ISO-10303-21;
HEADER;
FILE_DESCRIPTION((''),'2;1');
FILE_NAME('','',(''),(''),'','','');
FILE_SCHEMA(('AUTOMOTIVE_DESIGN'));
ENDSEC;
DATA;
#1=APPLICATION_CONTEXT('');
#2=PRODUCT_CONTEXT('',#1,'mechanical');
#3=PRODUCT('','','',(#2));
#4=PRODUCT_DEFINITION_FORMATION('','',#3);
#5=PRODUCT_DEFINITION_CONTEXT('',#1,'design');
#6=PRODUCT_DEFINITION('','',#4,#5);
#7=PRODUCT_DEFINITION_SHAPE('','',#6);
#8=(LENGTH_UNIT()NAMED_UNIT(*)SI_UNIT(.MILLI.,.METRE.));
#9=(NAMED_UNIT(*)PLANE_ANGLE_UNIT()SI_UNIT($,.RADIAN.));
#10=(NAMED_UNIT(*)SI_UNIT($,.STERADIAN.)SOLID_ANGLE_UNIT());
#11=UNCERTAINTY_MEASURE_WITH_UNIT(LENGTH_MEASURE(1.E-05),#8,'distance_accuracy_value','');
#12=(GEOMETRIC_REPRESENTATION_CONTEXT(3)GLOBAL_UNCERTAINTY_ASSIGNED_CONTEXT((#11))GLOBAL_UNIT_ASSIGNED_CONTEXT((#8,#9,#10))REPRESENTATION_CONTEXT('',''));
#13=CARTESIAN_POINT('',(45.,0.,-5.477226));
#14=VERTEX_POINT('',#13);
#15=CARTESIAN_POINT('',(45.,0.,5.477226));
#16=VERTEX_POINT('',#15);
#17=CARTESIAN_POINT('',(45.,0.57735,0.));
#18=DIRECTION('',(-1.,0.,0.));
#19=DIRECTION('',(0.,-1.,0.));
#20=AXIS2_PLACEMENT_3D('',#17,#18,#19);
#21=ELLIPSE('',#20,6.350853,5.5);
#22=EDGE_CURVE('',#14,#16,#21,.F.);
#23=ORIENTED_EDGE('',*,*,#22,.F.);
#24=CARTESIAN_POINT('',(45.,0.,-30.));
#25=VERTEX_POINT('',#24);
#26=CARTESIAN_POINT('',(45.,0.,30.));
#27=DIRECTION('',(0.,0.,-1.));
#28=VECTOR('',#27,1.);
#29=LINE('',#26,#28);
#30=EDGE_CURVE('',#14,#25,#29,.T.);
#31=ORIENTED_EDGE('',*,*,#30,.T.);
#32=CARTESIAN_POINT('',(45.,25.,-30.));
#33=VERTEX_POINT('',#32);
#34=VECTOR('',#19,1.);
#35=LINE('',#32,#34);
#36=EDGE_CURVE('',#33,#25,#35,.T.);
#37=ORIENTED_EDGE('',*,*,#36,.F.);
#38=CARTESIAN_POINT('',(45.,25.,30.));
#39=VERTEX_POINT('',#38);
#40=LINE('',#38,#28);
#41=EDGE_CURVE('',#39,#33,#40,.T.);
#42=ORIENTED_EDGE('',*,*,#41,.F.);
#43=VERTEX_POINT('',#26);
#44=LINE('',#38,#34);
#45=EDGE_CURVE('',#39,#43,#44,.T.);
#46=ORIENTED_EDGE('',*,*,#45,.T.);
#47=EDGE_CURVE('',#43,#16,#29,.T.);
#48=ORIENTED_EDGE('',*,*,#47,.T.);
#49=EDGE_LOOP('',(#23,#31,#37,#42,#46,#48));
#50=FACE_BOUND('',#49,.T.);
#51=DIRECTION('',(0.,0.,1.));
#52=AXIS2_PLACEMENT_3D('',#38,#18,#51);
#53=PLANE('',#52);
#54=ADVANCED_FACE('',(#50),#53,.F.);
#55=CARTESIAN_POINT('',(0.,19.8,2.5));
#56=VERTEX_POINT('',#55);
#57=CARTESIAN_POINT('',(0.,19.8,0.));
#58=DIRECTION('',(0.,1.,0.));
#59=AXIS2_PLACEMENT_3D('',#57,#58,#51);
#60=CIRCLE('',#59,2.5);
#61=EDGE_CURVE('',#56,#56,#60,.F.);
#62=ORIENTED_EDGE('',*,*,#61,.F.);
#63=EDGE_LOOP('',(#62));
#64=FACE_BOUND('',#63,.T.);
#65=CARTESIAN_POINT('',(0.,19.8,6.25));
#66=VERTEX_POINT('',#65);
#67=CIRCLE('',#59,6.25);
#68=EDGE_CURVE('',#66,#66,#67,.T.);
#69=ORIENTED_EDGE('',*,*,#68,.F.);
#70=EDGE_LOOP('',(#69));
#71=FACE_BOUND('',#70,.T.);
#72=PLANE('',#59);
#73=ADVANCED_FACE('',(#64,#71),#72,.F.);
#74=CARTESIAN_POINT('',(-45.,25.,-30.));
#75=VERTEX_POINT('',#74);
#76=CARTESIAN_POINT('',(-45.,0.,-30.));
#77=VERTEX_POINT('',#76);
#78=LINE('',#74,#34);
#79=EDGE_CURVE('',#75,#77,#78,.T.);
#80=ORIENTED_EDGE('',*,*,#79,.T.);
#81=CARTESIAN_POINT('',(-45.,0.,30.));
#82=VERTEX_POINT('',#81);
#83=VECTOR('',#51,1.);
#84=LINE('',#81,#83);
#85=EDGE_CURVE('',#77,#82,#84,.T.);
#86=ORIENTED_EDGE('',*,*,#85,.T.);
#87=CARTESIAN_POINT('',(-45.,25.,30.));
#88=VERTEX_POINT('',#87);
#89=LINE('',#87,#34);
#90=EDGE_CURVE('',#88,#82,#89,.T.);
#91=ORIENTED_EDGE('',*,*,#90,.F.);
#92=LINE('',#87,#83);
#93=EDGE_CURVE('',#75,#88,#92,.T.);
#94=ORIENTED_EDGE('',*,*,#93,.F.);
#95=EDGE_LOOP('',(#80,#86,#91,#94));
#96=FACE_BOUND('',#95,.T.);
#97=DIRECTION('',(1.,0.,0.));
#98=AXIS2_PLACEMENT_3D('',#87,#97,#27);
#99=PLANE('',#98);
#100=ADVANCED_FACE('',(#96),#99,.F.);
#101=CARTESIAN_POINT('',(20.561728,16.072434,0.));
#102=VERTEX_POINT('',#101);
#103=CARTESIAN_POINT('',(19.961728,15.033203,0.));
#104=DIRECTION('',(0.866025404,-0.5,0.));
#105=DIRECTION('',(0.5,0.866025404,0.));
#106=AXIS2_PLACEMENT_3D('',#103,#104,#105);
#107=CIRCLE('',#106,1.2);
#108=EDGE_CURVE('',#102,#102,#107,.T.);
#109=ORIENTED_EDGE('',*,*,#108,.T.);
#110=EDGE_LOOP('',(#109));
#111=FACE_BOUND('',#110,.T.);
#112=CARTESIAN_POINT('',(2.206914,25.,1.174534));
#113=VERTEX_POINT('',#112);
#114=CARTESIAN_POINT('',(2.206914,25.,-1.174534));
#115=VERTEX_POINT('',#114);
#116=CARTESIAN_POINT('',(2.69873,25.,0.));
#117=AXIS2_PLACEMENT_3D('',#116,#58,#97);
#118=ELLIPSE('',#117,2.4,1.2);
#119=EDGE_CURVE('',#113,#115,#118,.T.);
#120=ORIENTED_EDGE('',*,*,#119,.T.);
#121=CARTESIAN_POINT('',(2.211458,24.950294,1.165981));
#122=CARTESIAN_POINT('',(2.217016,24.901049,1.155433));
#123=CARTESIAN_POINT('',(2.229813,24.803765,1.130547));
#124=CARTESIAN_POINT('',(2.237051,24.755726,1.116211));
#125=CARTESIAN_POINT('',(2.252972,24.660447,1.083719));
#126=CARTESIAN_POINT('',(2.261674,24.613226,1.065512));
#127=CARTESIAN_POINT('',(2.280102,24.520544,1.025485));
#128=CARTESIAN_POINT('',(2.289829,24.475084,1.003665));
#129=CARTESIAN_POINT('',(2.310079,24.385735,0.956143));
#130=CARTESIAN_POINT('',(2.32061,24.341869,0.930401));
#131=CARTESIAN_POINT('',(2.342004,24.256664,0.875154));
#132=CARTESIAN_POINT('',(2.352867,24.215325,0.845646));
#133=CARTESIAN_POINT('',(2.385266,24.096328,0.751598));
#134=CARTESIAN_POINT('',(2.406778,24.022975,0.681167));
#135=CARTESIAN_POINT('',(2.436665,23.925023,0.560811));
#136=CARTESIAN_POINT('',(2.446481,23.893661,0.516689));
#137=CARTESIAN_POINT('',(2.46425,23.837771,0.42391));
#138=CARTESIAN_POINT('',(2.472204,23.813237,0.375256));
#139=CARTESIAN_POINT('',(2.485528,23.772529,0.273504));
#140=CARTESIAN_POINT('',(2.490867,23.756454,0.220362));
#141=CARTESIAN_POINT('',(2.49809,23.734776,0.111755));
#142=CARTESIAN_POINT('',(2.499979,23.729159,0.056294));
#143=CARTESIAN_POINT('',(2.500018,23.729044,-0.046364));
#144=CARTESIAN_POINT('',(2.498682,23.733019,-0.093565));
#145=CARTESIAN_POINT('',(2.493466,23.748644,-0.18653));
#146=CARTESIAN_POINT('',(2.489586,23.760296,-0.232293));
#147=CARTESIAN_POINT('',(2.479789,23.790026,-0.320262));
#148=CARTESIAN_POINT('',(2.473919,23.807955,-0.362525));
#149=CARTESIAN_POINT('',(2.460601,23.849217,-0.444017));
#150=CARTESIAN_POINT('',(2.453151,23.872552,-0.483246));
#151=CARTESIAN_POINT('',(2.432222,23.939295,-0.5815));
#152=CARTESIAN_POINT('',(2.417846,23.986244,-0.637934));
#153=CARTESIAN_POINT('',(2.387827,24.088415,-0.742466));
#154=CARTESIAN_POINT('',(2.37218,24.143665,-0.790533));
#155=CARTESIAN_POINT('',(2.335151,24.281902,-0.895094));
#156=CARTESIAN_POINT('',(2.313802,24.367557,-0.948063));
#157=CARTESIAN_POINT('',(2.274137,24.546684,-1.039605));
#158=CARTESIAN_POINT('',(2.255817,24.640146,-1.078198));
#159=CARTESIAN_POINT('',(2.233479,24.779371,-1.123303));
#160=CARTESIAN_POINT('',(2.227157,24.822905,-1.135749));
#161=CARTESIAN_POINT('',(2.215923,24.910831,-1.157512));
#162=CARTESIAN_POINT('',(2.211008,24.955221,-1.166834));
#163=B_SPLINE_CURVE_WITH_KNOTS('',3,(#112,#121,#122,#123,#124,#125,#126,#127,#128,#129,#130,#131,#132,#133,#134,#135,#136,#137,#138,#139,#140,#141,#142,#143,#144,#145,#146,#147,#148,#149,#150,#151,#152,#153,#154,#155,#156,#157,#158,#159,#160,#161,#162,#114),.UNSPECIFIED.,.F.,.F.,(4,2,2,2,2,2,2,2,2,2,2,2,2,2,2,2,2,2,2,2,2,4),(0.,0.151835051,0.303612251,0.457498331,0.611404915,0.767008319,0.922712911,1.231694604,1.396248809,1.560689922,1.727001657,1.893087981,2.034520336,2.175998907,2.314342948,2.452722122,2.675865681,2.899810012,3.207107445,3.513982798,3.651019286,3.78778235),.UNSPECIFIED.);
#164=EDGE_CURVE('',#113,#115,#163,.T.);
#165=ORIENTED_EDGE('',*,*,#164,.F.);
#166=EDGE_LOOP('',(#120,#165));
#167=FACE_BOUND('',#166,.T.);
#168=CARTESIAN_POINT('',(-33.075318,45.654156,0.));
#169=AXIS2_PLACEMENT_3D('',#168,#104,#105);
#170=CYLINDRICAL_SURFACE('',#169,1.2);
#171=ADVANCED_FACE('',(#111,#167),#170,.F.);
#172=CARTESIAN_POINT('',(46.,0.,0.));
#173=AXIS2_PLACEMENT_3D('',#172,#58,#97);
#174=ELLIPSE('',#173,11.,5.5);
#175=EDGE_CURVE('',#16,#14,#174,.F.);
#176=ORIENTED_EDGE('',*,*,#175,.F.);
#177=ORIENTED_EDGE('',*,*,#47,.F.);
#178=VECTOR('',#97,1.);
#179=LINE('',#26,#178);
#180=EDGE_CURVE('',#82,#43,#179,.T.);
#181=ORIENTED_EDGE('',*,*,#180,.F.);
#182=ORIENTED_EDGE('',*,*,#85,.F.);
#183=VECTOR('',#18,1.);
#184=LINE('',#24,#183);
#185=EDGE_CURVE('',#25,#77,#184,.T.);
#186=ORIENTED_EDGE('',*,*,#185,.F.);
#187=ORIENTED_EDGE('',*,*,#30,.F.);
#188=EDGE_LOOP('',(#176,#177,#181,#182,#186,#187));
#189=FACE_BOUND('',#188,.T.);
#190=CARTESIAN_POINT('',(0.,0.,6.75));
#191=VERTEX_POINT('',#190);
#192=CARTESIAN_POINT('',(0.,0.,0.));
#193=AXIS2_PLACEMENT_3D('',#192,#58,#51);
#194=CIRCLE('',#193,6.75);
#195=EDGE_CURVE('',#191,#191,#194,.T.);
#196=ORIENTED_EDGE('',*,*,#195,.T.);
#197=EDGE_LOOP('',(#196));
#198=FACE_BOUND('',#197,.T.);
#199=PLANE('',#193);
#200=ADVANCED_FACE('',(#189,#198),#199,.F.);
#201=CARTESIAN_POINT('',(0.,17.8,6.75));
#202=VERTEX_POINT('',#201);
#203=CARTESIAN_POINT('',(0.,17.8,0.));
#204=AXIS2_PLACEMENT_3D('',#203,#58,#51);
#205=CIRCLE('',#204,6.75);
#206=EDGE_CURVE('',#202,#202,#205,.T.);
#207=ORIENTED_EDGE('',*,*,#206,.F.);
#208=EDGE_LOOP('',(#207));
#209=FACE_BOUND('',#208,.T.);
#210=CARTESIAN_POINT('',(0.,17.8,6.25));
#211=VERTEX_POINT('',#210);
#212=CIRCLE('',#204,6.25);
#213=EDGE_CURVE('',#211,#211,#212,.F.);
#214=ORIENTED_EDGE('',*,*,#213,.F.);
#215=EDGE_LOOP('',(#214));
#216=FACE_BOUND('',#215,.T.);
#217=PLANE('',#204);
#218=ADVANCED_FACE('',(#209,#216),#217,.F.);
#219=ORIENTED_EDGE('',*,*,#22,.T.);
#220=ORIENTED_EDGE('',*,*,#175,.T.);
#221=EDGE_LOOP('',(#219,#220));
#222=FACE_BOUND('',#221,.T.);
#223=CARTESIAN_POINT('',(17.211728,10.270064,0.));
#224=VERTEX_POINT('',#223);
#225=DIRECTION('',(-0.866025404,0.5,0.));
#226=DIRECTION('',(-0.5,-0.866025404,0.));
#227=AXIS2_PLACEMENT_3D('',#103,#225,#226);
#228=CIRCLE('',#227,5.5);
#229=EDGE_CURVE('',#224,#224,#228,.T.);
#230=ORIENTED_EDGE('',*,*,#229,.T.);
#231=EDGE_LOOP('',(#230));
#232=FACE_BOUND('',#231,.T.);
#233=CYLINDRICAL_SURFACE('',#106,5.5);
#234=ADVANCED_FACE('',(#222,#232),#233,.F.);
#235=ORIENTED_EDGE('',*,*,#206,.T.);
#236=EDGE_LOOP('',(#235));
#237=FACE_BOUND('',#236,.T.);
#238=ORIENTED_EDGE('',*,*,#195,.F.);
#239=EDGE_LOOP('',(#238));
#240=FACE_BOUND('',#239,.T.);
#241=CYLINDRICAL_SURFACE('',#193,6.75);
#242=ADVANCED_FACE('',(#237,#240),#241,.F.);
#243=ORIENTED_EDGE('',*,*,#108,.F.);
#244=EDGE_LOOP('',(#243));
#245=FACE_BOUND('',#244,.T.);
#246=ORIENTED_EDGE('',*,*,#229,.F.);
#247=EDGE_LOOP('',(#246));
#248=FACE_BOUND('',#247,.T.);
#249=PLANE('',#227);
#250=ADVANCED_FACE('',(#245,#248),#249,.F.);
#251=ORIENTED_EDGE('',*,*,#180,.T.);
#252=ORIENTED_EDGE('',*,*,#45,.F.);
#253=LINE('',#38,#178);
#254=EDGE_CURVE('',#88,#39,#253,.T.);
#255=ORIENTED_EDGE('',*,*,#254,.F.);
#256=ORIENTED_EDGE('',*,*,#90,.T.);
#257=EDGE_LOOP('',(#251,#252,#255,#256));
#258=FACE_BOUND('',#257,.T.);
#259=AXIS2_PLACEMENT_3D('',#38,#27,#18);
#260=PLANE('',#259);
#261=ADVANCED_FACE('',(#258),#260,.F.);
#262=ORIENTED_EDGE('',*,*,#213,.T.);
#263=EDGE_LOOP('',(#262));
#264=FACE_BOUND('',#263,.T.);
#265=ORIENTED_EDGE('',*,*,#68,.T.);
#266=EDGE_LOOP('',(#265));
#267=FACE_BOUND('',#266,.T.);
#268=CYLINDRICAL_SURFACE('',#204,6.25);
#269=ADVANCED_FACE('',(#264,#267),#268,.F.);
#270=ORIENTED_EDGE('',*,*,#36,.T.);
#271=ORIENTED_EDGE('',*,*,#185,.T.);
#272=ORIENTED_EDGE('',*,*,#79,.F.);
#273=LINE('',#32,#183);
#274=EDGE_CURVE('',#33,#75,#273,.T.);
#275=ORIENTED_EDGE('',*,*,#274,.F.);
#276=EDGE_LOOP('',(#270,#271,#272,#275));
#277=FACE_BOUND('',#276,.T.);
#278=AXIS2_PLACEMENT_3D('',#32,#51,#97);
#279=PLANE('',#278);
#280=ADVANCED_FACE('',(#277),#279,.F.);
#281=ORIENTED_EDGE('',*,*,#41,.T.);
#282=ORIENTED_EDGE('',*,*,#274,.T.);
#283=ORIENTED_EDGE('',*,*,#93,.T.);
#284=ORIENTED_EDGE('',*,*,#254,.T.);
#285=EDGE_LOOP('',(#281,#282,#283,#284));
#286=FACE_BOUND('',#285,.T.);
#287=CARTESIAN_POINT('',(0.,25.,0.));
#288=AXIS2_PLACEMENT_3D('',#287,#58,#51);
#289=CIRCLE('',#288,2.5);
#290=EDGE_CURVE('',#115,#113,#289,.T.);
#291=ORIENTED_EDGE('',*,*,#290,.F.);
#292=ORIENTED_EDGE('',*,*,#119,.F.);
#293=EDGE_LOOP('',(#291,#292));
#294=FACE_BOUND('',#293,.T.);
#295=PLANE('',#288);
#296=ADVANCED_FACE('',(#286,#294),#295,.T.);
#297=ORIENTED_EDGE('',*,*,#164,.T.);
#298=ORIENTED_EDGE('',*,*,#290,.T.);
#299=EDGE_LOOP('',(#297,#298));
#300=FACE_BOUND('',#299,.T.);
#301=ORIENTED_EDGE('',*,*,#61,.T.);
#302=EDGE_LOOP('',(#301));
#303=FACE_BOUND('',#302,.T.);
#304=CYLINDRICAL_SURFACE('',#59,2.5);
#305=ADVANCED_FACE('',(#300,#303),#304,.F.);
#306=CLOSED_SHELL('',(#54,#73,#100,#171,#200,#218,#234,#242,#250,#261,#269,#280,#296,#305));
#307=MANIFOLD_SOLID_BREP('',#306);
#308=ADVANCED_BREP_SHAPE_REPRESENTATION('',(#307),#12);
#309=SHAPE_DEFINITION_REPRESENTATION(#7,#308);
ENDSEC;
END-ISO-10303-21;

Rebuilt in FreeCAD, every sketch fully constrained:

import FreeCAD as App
import Part
import Sketcher
Q = App.Units.Quantity

doc = App.newDocument("Part")
body = doc.addObject("PartDesign::Body", "Body")

sketch1 = body.newObject("Sketcher::SketchObject", "Sketch")
sketch1.AttachmentSupport = (doc.getObject("XZ_Plane"), [""])
sketch1.MapMode = "FlatFace"
sketch1.addGeometry(Part.LineSegment(App.Vector(-45, -30, 0), App.Vector(-45, 30, 0)), False)
sketch1.addGeometry(Part.LineSegment(App.Vector(-45, 30, 0), App.Vector(45, 30, 0)), False)
sketch1.addGeometry(Part.LineSegment(App.Vector(45, 30, 0), App.Vector(45, -30, 0)), False)
sketch1.addGeometry(Part.LineSegment(App.Vector(45, -30, 0), App.Vector(-45, -30, 0)), False)
sketch1.addConstraint(Sketcher.Constraint("Coincident", 0, 2, 1, 1))
sketch1.addConstraint(Sketcher.Constraint("Coincident", 1, 2, 2, 1))
sketch1.addConstraint(Sketcher.Constraint("Coincident", 2, 2, 3, 1))
sketch1.addConstraint(Sketcher.Constraint("Coincident", 3, 2, 0, 1))
sketch1.addConstraint(Sketcher.Constraint("Vertical", 0))
sketch1.addConstraint(Sketcher.Constraint("Horizontal", 1))
sketch1.addConstraint(Sketcher.Constraint("Vertical", 2))
sketch1.addConstraint(Sketcher.Constraint("Horizontal", 3))
sketch1.addConstraint(Sketcher.Constraint("Symmetric", 0, 2, 2, 2, -1, 1))
sketch1.addConstraint(Sketcher.Constraint("DistanceX", 1, 1, 1, 2, Q("90 mm")))
sketch1.addConstraint(Sketcher.Constraint("DistanceY", 0, 1, 0, 2, Q("60 mm")))
pad1 = body.newObject("PartDesign::Pad", "Pad")
pad1.Profile = sketch1
pad1.Length = 25
pad1.Reversed = True

sketch2 = body.newObject("Sketcher::SketchObject", "Sketch001")
sketch2.AttachmentSupport = (doc.getObject("XZ_Plane"), [""])
sketch2.MapMode = "FlatFace"
sketch2.AttachmentOffset = App.Placement(App.Vector(0, 0, -25), App.Rotation())
sketch2.addGeometry(Part.Circle(App.Vector(0, 0, 0), App.Vector(0, 0, 1), 2.5), False)
sketch2.addConstraint(Sketcher.Constraint("Coincident", 0, 3, -1, 1))
sketch2.addConstraint(Sketcher.Constraint("Diameter", 0, Q("5 mm")))
pocket1 = body.newObject("PartDesign::Pocket", "Pocket")
pocket1.Profile = sketch2
pocket1.Length = 5.2
pocket1.Reversed = True

sketch3 = body.newObject("Sketcher::SketchObject", "Sketch002")
sketch3.AttachmentSupport = (doc.getObject("XZ_Plane"), [""])
sketch3.MapMode = "FlatFace"
sketch3.AttachmentOffset = App.Placement(App.Vector(0, 0, -19.8), App.Rotation())
sketch3.addGeometry(Part.Circle(App.Vector(0, 0, 0), App.Vector(0, 0, 1), 6), False)
sketch3.addConstraint(Sketcher.Constraint("Coincident", 0, 3, -1, 1))
sketch3.addConstraint(Sketcher.Constraint("Diameter", 0, Q("12.5 mm")))
pocket2 = body.newObject("PartDesign::Pocket", "Pocket001")
pocket2.Profile = sketch3
pocket2.Length = 2
pocket2.Reversed = True

sketch4 = body.newObject("Sketcher::SketchObject", "Sketch003")
sketch4.AttachmentSupport = (doc.getObject("XZ_Plane"), [""])
sketch4.MapMode = "FlatFace"
sketch4.AttachmentOffset = App.Placement(App.Vector(0, 0, -17.8), App.Rotation())
sketch4.addGeometry(Part.Circle(App.Vector(0, 0, 0), App.Vector(0, 0, 1), 7), False)
sketch4.addConstraint(Sketcher.Constraint("Coincident", 0, 3, -1, 1))
sketch4.addConstraint(Sketcher.Constraint("Diameter", 0, Q("13.5 mm")))
pocket3 = body.newObject("PartDesign::Pocket", "Pocket002")
pocket3.Profile = sketch4
pocket3.Type = "ThroughAll"
pocket3.Reversed = True

sketch5 = body.newObject("Sketcher::SketchObject", "Sketch004")
sketch5.Placement = App.Placement(App.Vector(13.839746, -7.990381, 0), App.Rotation(App.Vector(0, 0, 1), App.Vector(0.5, 0.866025404, 0), App.Vector(-0.866025404, 0.5, 0), "ZXY"))
sketch5.addGeometry(Part.Circle(App.Vector(0, 23, 0), App.Vector(0, 0, 1), 6), False)
sketch5.addConstraint(Sketcher.Constraint("PointOnObject", 0, 3, -2))
sketch5.addConstraint(Sketcher.Constraint("Diameter", 0, Q("11 mm")))
sketch5.addConstraint(Sketcher.Constraint("DistanceY", -1, 1, 0, 3, Q("23 mm")))
pocket4 = body.newObject("PartDesign::Pocket", "Pocket003")
pocket4.Profile = sketch5
pocket4.Type = "TwoLengths"
pocket4.Length = 6.21
pocket4.Length2 = 30
pocket4.Reversed = True

sketch6 = body.newObject("Sketcher::SketchObject", "Sketch005")
sketch6.Placement = App.Placement(App.Vector(8.461728, -4.885381, 0), App.Rotation(App.Vector(0, 0, -1), App.Vector(0.5, 0.866025404, 0), App.Vector(0.866025404, -0.5, 0), "ZXY"))
sketch6.addGeometry(Part.Circle(App.Vector(0, 23, 0), App.Vector(0, 0, 1), 1.2), False)
sketch6.addConstraint(Sketcher.Constraint("PointOnObject", 0, 3, -2))
sketch6.addConstraint(Sketcher.Constraint("Diameter", 0, Q("2.4 mm")))
sketch6.addConstraint(Sketcher.Constraint("DistanceY", -1, 1, 0, 3, Q("23 mm")))
pocket5 = body.newObject("PartDesign::Pocket", "Pocket004")
pocket5.Profile = sketch6
pocket5.Type = "ThroughAll"

doc.recompute()
